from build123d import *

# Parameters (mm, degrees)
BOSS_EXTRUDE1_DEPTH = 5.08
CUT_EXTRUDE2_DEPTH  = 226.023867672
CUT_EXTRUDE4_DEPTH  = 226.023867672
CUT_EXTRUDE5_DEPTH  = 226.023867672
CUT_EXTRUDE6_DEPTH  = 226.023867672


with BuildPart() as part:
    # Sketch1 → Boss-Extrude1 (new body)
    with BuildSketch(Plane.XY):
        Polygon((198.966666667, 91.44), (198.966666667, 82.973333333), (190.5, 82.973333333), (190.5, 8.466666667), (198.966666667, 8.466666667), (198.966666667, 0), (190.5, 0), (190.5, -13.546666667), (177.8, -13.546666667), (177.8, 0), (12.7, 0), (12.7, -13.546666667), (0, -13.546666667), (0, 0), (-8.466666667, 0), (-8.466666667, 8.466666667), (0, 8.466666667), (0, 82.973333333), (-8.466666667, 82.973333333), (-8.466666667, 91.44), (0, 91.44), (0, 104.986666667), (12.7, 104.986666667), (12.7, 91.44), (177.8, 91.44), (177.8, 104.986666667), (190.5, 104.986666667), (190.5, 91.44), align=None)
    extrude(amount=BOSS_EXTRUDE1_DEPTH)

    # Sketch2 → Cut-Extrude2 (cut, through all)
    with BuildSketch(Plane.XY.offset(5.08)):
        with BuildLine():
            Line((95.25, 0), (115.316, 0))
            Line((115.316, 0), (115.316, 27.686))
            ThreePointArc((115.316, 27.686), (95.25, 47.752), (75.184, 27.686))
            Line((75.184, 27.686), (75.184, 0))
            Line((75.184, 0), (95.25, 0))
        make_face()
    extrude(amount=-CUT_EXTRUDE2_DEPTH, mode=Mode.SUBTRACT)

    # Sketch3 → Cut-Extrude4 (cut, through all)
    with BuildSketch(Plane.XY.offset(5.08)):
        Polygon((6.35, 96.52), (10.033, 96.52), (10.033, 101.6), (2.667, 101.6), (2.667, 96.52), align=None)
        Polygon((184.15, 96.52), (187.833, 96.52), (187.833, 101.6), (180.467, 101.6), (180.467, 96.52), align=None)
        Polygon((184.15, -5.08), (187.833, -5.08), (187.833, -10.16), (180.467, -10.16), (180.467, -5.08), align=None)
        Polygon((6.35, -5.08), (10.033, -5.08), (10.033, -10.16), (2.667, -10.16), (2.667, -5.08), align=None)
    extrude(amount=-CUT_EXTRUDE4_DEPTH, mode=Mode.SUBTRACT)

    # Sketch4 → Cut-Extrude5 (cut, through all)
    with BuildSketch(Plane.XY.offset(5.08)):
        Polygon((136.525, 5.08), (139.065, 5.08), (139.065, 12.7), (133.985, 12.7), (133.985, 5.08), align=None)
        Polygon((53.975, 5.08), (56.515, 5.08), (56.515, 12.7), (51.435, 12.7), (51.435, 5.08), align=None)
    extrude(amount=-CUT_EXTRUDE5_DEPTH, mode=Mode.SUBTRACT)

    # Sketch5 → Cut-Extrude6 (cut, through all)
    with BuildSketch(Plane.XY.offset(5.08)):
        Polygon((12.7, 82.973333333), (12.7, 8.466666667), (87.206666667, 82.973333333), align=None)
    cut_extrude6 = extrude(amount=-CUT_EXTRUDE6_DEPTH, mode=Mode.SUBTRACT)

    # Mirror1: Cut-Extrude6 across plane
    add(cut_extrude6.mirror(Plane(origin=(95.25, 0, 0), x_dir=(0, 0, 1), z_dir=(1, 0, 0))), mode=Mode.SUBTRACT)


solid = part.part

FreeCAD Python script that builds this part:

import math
import FreeCAD as App
import Part
import Sketcher
from FreeCAD import Vector
Q = App.Units.Quantity

doc = App.newDocument("Part")
body = doc.addObject("PartDesign::Body", "Body")

# Sketch on XY plane
sketch1 = doc.addObject("Sketcher::SketchObject", "Sketch")
body.addObject(sketch1)
sketch1.AttachmentSupport = (doc.XY_Plane, [""])
sketch1.MapMode = "FlatFace"
sketch1.addGeometry(Part.LineSegment(Vector(199, 83, 0), Vector(199, 91, 0)), False)
sketch1.addGeometry(Part.LineSegment(Vector(199, 91, 0), Vector(190, 91, 0)), False)
sketch1.addGeometry(Part.LineSegment(Vector(190, 91, 0), Vector(190, 105, 0)), False)
sketch1.addGeometry(Part.LineSegment(Vector(190, 105, 0), Vector(178, 105, 0)), False)
sketch1.addGeometry(Part.LineSegment(Vector(178, 105, 0), Vector(178, 91, 0)), False)
sketch1.addGeometry(Part.LineSegment(Vector(178, 91, 0), Vector(13, 91, 0)), False)
sketch1.addGeometry(Part.LineSegment(Vector(13, 91, 0), Vector(13, 105, 0)), False)
sketch1.addGeometry(Part.LineSegment(Vector(13, 105, 0), Vector(0, 105, 0)), False)
sketch1.addGeometry(Part.LineSegment(Vector(0, 105, 0), Vector(0, 91, 0)), False)
sketch1.addGeometry(Part.LineSegment(Vector(0, 91, 0), Vector(-8, 91, 0)), False)
sketch1.addGeometry(Part.LineSegment(Vector(-8, 91, 0), Vector(-8, 83, 0)), False)
sketch1.addGeometry(Part.LineSegment(Vector(-8, 83, 0), Vector(0, 83, 0)), False)
sketch1.addGeometry(Part.LineSegment(Vector(0, 83, 0), Vector(0, 8, 0)), False)
sketch1.addGeometry(Part.LineSegment(Vector(0, 8, 0), Vector(-8, 8, 0)), False)
sketch1.addGeometry(Part.LineSegment(Vector(-8, 8, 0), Vector(-8, 0, 0)), False)
sketch1.addGeometry(Part.LineSegment(Vector(-8, 0, 0), Vector(0, 0, 0)), False)
sketch1.addGeometry(Part.LineSegment(Vector(0, 0, 0), Vector(0, -14, 0)), False)
sketch1.addGeometry(Part.LineSegment(Vector(0, -14, 0), Vector(13, -14, 0)), False)
sketch1.addGeometry(Part.LineSegment(Vector(13, -14, 0), Vector(13, 0, 0)), False)
sketch1.addGeometry(Part.LineSegment(Vector(13, 0, 0), Vector(178, 0, 0)), False)
sketch1.addGeometry(Part.LineSegment(Vector(178, 0, 0), Vector(178, -14, 0)), False)
sketch1.addGeometry(Part.LineSegment(Vector(178, -14, 0), Vector(190, -14, 0)), False)
sketch1.addGeometry(Part.LineSegment(Vector(190, -14, 0), Vector(190, 0, 0)), False)
sketch1.addGeometry(Part.LineSegment(Vector(190, 0, 0), Vector(199, 0, 0)), False)
sketch1.addGeometry(Part.LineSegment(Vector(199, 0, 0), Vector(199, 8, 0)), False)
sketch1.addGeometry(Part.LineSegment(Vector(199, 8, 0), Vector(190, 8, 0)), False)
sketch1.addGeometry(Part.LineSegment(Vector(190, 8, 0), Vector(190, 83, 0)), False)
sketch1.addGeometry(Part.LineSegment(Vector(190, 83, 0), Vector(199, 83, 0)), False)
sketch1.addConstraint(Sketcher.Constraint("Coincident", 0, 2, 1, 1))
sketch1.addConstraint(Sketcher.Constraint("Coincident", 1, 2, 2, 1))
sketch1.addConstraint(Sketcher.Constraint("Coincident", 2, 2, 3, 1))
sketch1.addConstraint(Sketcher.Constraint("Coincident", 3, 2, 4, 1))
sketch1.addConstraint(Sketcher.Constraint("Coincident", 4, 2, 5, 1))
sketch1.addConstraint(Sketcher.Constraint("Coincident", 5, 2, 6, 1))
sketch1.addConstraint(Sketcher.Constraint("Coincident", 6, 2, 7, 1))
sketch1.addConstraint(Sketcher.Constraint("Coincident", 7, 2, 8, 1))
sketch1.addConstraint(Sketcher.Constraint("Coincident", 8, 2, 9, 1))
sketch1.addConstraint(Sketcher.Constraint("Coincident", 9, 2, 10, 1))
sketch1.addConstraint(Sketcher.Constraint("Coincident", 10, 2, 11, 1))
sketch1.addConstraint(Sketcher.Constraint("Coincident", 11, 2, 12, 1))
sketch1.addConstraint(Sketcher.Constraint("Coincident", 12, 2, 13, 1))
sketch1.addConstraint(Sketcher.Constraint("Coincident", 13, 2, 14, 1))
sketch1.addConstraint(Sketcher.Constraint("Coincident", 14, 2, 15, 1))
sketch1.addConstraint(Sketcher.Constraint("Coincident", 15, 2, 16, 1))
sketch1.addConstraint(Sketcher.Constraint("Coincident", 16, 2, 17, 1))
sketch1.addConstraint(Sketcher.Constraint("Coincident", 17, 2, 18, 1))
sketch1.addConstraint(Sketcher.Constraint("Coincident", 18, 2, 19, 1))
sketch1.addConstraint(Sketcher.Constraint("Coincident", 19, 2, 20, 1))
sketch1.addConstraint(Sketcher.Constraint("Coincident", 20, 2, 21, 1))
sketch1.addConstraint(Sketcher.Constraint("Coincident", 21, 2, 22, 1))
sketch1.addConstraint(Sketcher.Constraint("Coincident", 22, 2, 23, 1))
sketch1.addConstraint(Sketcher.Constraint("Coincident", 23, 2, 24, 1))
sketch1.addConstraint(Sketcher.Constraint("Coincident", 24, 2, 25, 1))
sketch1.addConstraint(Sketcher.Constraint("Coincident", 25, 2, 26, 1))
sketch1.addConstraint(Sketcher.Constraint("Coincident", 26, 2, 27, 1))
sketch1.addConstraint(Sketcher.Constraint("Coincident", 27, 2, 0, 1))
sketch1.addConstraint(Sketcher.Constraint("Vertical", 0))
sketch1.addConstraint(Sketcher.Constraint("Horizontal", 1))
sketch1.addConstraint(Sketcher.Constraint("Vertical", 2))
sketch1.addConstraint(Sketcher.Constraint("Horizontal", 3))
sketch1.addConstraint(Sketcher.Constraint("Vertical", 4))
sketch1.addConstraint(Sketcher.Constraint("Horizontal", 5))
sketch1.addConstraint(Sketcher.Constraint("Vertical", 6))
sketch1.addConstraint(Sketcher.Constraint("Horizontal", 7))
sketch1.addConstraint(Sketcher.Constraint("Vertical", 8))
sketch1.addConstraint(Sketcher.Constraint("Horizontal", 9))
sketch1.addConstraint(Sketcher.Constraint("Vertical", 10))
sketch1.addConstraint(Sketcher.Constraint("Horizontal", 11))
sketch1.addConstraint(Sketcher.Constraint("Vertical", 12))
sketch1.addConstraint(Sketcher.Constraint("Horizontal", 13))
sketch1.addConstraint(Sketcher.Constraint("Vertical", 14))
sketch1.addConstraint(Sketcher.Constraint("Horizontal", 15))
sketch1.addConstraint(Sketcher.Constraint("Vertical", 16))
sketch1.addConstraint(Sketcher.Constraint("Horizontal", 17))
sketch1.addConstraint(Sketcher.Constraint("Vertical", 18))
sketch1.addConstraint(Sketcher.Constraint("Horizontal", 19))
sketch1.addConstraint(Sketcher.Constraint("Vertical", 20))
sketch1.addConstraint(Sketcher.Constraint("Horizontal", 21))
sketch1.addConstraint(Sketcher.Constraint("Vertical", 22))
sketch1.addConstraint(Sketcher.Constraint("Horizontal", 23))
sketch1.addConstraint(Sketcher.Constraint("Vertical", 24))
sketch1.addConstraint(Sketcher.Constraint("Horizontal", 25))
sketch1.addConstraint(Sketcher.Constraint("Vertical", 26))
sketch1.addConstraint(Sketcher.Constraint("Horizontal", 27))
sketch1.addConstraint(Sketcher.Constraint("Coincident", 15, 2, -1, 1))
sketch1.addConstraint(Sketcher.Constraint("PointOnObject", 7, 2, -2))
sketch1.addConstraint(Sketcher.Constraint("PointOnObject", 11, 2, -2))
sketch1.addConstraint(Sketcher.Constraint("PointOnObject", 18, 2, -1))
sketch1.addConstraint(Sketcher.Constraint("PointOnObject", 22, 2, -1))
sketch1.addConstraint(Sketcher.Constraint("Horizontal", 1, 2, 4, 2))
sketch1.addConstraint(Sketcher.Constraint("Horizontal", 3, 2, 6, 2))
sketch1.addConstraint(Sketcher.Constraint("Horizontal", 5, 2, 8, 2))
sketch1.addConstraint(Sketcher.Constraint("Horizontal", 17, 2, 20, 2))
sketch1.addConstraint(Sketcher.Constraint("Horizontal", 13, 2, 24, 2))
sketch1.addConstraint(Sketcher.Constraint("Horizontal", 11, 2, 26, 2))
sketch1.addConstraint(Sketcher.Constraint("Vertical", 10, 2, 13, 2))
sketch1.addConstraint(Sketcher.Constraint("Vertical", 6, 2, 17, 2))
sketch1.addConstraint(Sketcher.Constraint("Vertical", 4, 2, 19, 2))
sketch1.addConstraint(Sketcher.Constraint("Vertical", 2, 2, 21, 2))
sketch1.addConstraint(Sketcher.Constraint("Vertical", 0, 2, 23, 2))
sketch1.addConstraint(Sketcher.Constraint("Vertical", 22, 2, 25, 2))
sketch1.addConstraint(Sketcher.Constraint("Equal", 3, 7))
sketch1.addConstraint(Sketcher.Constraint("Equal", 1, 9))
sketch1.addConstraint(Sketcher.Constraint("Equal", 27, 0))
sketch1.addConstraint(Sketcher.Constraint("Equal", 10, 14))
sketch1.addConstraint(Sketcher.Constraint("Equal", 8, 16))
sketch1.addConstraint(Sketcher.Constraint("DistanceX", 3, 2, 3, 1, Q("0.5 in")))
sketch1.addConstraint(Sketcher.Constraint("DistanceX", 5, 2, 5, 1, Q("6.5 in")))
sketch1.addConstraint(Sketcher.Constraint("DistanceY", -1, 1, 0, 2, Q("3.6 in")))
sketch1.addConstraint(Sketcher.Constraint("DistanceY", 16, 2, 11, 2, Q("3.8 in")))
sketch1.addConstraint(Sketcher.Constraint("DistanceX", 1, 2, 1, 1, 8.466667))
pad1 = doc.addObject("PartDesign::Pad", "Pad")
body.addObject(pad1)
pad1.Profile = sketch1
pad1.Length = Q("0.2 in")

# Sketch on XY plane
sketch2 = doc.addObject("Sketcher::SketchObject", "Sketch001")
body.addObject(sketch2)
sketch2.AttachmentSupport = (doc.XY_Plane, [""])
sketch2.MapMode = "FlatFace"
sketch2.AttachmentOffset = App.Placement(Vector(0, 0, 0.2 * 25.4), App.Rotation())
sketch2.addGeometry(Part.LineSegment(Vector(115, 0, 0), Vector(115, 28, 0)), False)
sketch2.addGeometry(Part.ArcOfCircle(Part.Circle(Vector(95, 28, 0), Vector(0, 0, 1), 20), math.radians(0), math.radians(180)), False)
sketch2.addGeometry(Part.LineSegment(Vector(75, 28, 0), Vector(75, 0, 0)), False)
sketch2.addGeometry(Part.LineSegment(Vector(75, 0, 0), Vector(115, 0, 0)), False)
sketch2.addConstraint(Sketcher.Constraint("Tangent", 0, 2, 1, 1))
sketch2.addConstraint(Sketcher.Constraint("Tangent", 1, 2, 2, 1))
sketch2.addConstraint(Sketcher.Constraint("Coincident", 2, 2, 3, 1))
sketch2.addConstraint(Sketcher.Constraint("Coincident", 3, 2, 0, 1))
sketch2.addConstraint(Sketcher.Constraint("Vertical", 0))
sketch2.addConstraint(Sketcher.Constraint("Vertical", 2))
sketch2.addConstraint(Sketcher.Constraint("Horizontal", 3))
sketch2.addConstraint(Sketcher.Constraint("PointOnObject", 2, 2, -1))
sketch2.addConstraint(Sketcher.Constraint("Radius", 1, Q("0.79 in")))
sketch2.addConstraint(Sketcher.Constraint("DistanceY", 0, 1, 0, 2, Q("1.09 in")))
sketch2.addConstraint(Sketcher.Constraint("DistanceX", -1, 1, 1, 3, Q("3.75 in")))
pocket1 = doc.addObject("PartDesign::Pocket", "Pocket")
body.addObject(pocket1)
pocket1.Profile = sketch2
pocket1.Type = "ThroughAll"

# Sketch on XY plane
sketch3 = doc.addObject("Sketcher::SketchObject", "Sketch002")
body.addObject(sketch3)
sketch3.AttachmentSupport = (doc.XY_Plane, [""])
sketch3.MapMode = "FlatFace"
sketch3.AttachmentOffset = App.Placement(Vector(0, 0, 0.2 * 25.4), App.Rotation())
sketch3.addGeometry(Part.LineSegment(Vector(10, 97, 0), Vector(10, 102, 0)), False)
sketch3.addGeometry(Part.LineSegment(Vector(10, 102, 0), Vector(3, 102, 0)), False)
sketch3.addGeometry(Part.LineSegment(Vector(3, 102, 0), Vector(3, 97, 0)), False)
sketch3.addGeometry(Part.LineSegment(Vector(3, 97, 0), Vector(10, 97, 0)), False)
sketch3.addGeometry(Part.LineSegment(Vector(188, 97, 0), Vector(188, 102, 0)), False)
sketch3.addGeometry(Part.LineSegment(Vector(188, 102, 0), Vector(180, 102, 0)), False)
sketch3.addGeometry(Part.LineSegment(Vector(180, 102, 0), Vector(180, 97, 0)), False)
sketch3.addGeometry(Part.LineSegment(Vector(180, 97, 0), Vector(188, 97, 0)), False)
sketch3.addGeometry(Part.LineSegment(Vector(188, -5, 0), Vector(180, -5, 0)), False)
sketch3.addGeometry(Part.LineSegment(Vector(180, -5, 0), Vector(180, -10, 0)), False)
sketch3.addGeometry(Part.LineSegment(Vector(180, -10, 0), Vector(188, -10, 0)), False)
sketch3.addGeometry(Part.LineSegment(Vector(188, -10, 0), Vector(188, -5, 0)), False)
sketch3.addGeometry(Part.LineSegment(Vector(10, -5, 0), Vector(3, -5, 0)), False)
sketch3.addGeometry(Part.LineSegment(Vector(3, -5, 0), Vector(3, -10, 0)), False)
sketch3.addGeometry(Part.LineSegment(Vector(3, -10, 0), Vector(10, -10, 0)), False)
sketch3.addGeometry(Part.LineSegment(Vector(10, -10, 0), Vector(10, -5, 0)), False)
sketch3.addConstraint(Sketcher.Constraint("Coincident", 0, 2, 1, 1))
sketch3.addConstraint(Sketcher.Constraint("Coincident", 1, 2, 2, 1))
sketch3.addConstraint(Sketcher.Constraint("Coincident", 2, 2, 3, 1))
sketch3.addConstraint(Sketcher.Constraint("Coincident", 3, 2, 0, 1))
sketch3.addConstraint(Sketcher.Constraint("Coincident", 4, 2, 5, 1))
sketch3.addConstraint(Sketcher.Constraint("Coincident", 5, 2, 6, 1))
sketch3.addConstraint(Sketcher.Constraint("Coincident", 6, 2, 7, 1))
sketch3.addConstraint(Sketcher.Constraint("Coincident", 7, 2, 4, 1))
sketch3.addConstraint(Sketcher.Constraint("Coincident", 8, 2, 9, 1))
sketch3.addConstraint(Sketcher.Constraint("Coincident", 9, 2, 10, 1))
sketch3.addConstraint(Sketcher.Constraint("Coincident", 10, 2, 11, 1))
sketch3.addConstraint(Sketcher.Constraint("Coincident", 11, 2, 8, 1))
sketch3.addConstraint(Sketcher.Constraint("Coincident", 12, 2, 13, 1))
sketch3.addConstraint(Sketcher.Constraint("Coincident", 13, 2, 14, 1))
sketch3.addConstraint(Sketcher.Constraint("Coincident", 14, 2, 15, 1))
sketch3.addConstraint(Sketcher.Constraint("Coincident", 15, 2, 12, 1))
sketch3.addConstraint(Sketcher.Constraint("Vertical", 0))
sketch3.addConstraint(Sketcher.Constraint("Horizontal", 1))
sketch3.addConstraint(Sketcher.Constraint("Vertical", 2))
sketch3.addConstraint(Sketcher.Constraint("Horizontal", 3))
sketch3.addConstraint(Sketcher.Constraint("Vertical", 4))
sketch3.addConstraint(Sketcher.Constraint("Horizontal", 5))
sketch3.addConstraint(Sketcher.Constraint("Vertical", 6))
sketch3.addConstraint(Sketcher.Constraint("Horizontal", 7))
sketch3.addConstraint(Sketcher.Constraint("Horizontal", 8))
sketch3.addConstraint(Sketcher.Constraint("Vertical", 9))
sketch3.addConstraint(Sketcher.Constraint("Horizontal", 10))
sketch3.addConstraint(Sketcher.Constraint("Vertical", 11))
sketch3.addConstraint(Sketcher.Constraint("Horizontal", 12))
sketch3.addConstraint(Sketcher.Constraint("Vertical", 13))
sketch3.addConstraint(Sketcher.Constraint("Horizontal", 14))
sketch3.addConstraint(Sketcher.Constraint("Vertical", 15))
sketch3.addConstraint(Sketcher.Constraint("Horizontal", 1, 2, 4, 2))
sketch3.addConstraint(Sketcher.Constraint("Horizontal", 3, 2, 6, 2))
sketch3.addConstraint(Sketcher.Constraint("Horizontal", 11, 2, 12, 2))
sketch3.addConstraint(Sketcher.Constraint("Horizontal", 10, 2, 13, 2))
sketch3.addConstraint(Sketcher.Constraint("Vertical", 6, 2, 8, 2))
sketch3.addConstraint(Sketcher.Constraint("Vertical", 7, 2, 10, 2))
sketch3.addConstraint(Sketcher.Constraint("Vertical", 2, 2, 12, 2))
sketch3.addConstraint(Sketcher.Constraint("Vertical", 3, 2, 14, 2))
sketch3.addConstraint(Sketcher.Constraint("Equal", 3, 5))
sketch3.addConstraint(Sketcher.Constraint("Equal", 6, 9))
sketch3.addConstraint(Sketcher.Constraint("DistanceY", 0, 1, 0, 2, Q("0.2 in")))
sketch3.addConstraint(Sketcher.Constraint("DistanceY", -1, 1, 0, 2, Q("4 in")))
sketch3.addConstraint(Sketcher.Constraint("DistanceX", 0, 2, 4, 2, Q("7 in")))
sketch3.addConstraint(Sketcher.Constraint("DistanceY", 8, 2, 6, 2, Q("4 in")))
sketch3.addConstraint(Sketcher.Constraint("DistanceX", 1, 2, 1, 1, Q("0.29 in")))
sketch3.addConstraint(Sketcher.Constraint("DistanceX", -1, 1, 0, 2, Q("0.395 in")))
pocket2 = doc.addObject("PartDesign::Pocket", "Pocket001")
body.addObject(pocket2)
pocket2.Profile = sketch3
pocket2.Type = "ThroughAll"

# Sketch on XY plane
sketch4 = doc.addObject("Sketcher::SketchObject", "Sketch003")
body.addObject(sketch4)
sketch4.AttachmentSupport = (doc.XY_Plane, [""])
sketch4.MapMode = "FlatFace"
sketch4.AttachmentOffset = App.Placement(Vector(0, 0, 0.2 * 25.4), App.Rotation())
sketch4.addGeometry(Part.LineSegment(Vector(139, 5, 0), Vector(139, 13, 0)), False)
sketch4.addGeometry(Part.LineSegment(Vector(139, 13, 0), Vector(134, 13, 0)), False)
sketch4.addGeometry(Part.LineSegment(Vector(134, 13, 0), Vector(134, 5, 0)), False)
sketch4.addGeometry(Part.LineSegment(Vector(134, 5, 0), Vector(139, 5, 0)), False)
sketch4.addGeometry(Part.LineSegment(Vector(57, 5, 0), Vector(57, 13, 0)), False)
sketch4.addGeometry(Part.LineSegment(Vector(57, 13, 0), Vector(51, 13, 0)), False)
sketch4.addGeometry(Part.LineSegment(Vector(51, 13, 0), Vector(51, 5, 0)), False)
sketch4.addGeometry(Part.LineSegment(Vector(51, 5, 0), Vector(57, 5, 0)), False)
sketch4.addConstraint(Sketcher.Constraint("Coincident", 0, 2, 1, 1))
sketch4.addConstraint(Sketcher.Constraint("Coincident", 1, 2, 2, 1))
sketch4.addConstraint(Sketcher.Constraint("Coincident", 2, 2, 3, 1))
sketch4.addConstraint(Sketcher.Constraint("Coincident", 3, 2, 0, 1))
sketch4.addConstraint(Sketcher.Constraint("Coincident", 4, 2, 5, 1))
sketch4.addConstraint(Sketcher.Constraint("Coincident", 5, 2, 6, 1))
sketch4.addConstraint(Sketcher.Constraint("Coincident", 6, 2, 7, 1))
sketch4.addConstraint(Sketcher.Constraint("Coincident", 7, 2, 4, 1))
sketch4.addConstraint(Sketcher.Constraint("Vertical", 0))
sketch4.addConstraint(Sketcher.Constraint("Horizontal", 1))
sketch4.addConstraint(Sketcher.Constraint("Vertical", 2))
sketch4.addConstraint(Sketcher.Constraint("Horizontal", 3))
sketch4.addConstraint(Sketcher.Constraint("Vertical", 4))
sketch4.addConstraint(Sketcher.Constraint("Horizontal", 5))
sketch4.addConstraint(Sketcher.Constraint("Vertical", 6))
sketch4.addConstraint(Sketcher.Constraint("Horizontal", 7))
sketch4.addConstraint(Sketcher.Constraint("Horizontal", 1, 2, 4, 2))
sketch4.addConstraint(Sketcher.Constraint("Horizontal", 3, 2, 6, 2))
sketch4.addConstraint(Sketcher.Constraint("Equal", 3, 5))
sketch4.addConstraint(Sketcher.Constraint("DistanceX", 1, 2, 1, 1, Q("0.2 in")))
sketch4.addConstraint(Sketcher.Constraint("DistanceY", 0, 1, 0, 2, Q("0.3 in")))
sketch4.addConstraint(Sketcher.Constraint("DistanceY", -1, 1, 0, 2, Q("0.5 in")))
sketch4.addConstraint(Sketcher.Constraint("DistanceX", 4, 2, 1, 2, Q("3.05 in")))
sketch4.addConstraint(Sketcher.Constraint("DistanceX", -1, 1, 0, 2, Q("5.475 in")))
pocket3 = doc.addObject("PartDesign::Pocket", "Pocket002")
body.addObject(pocket3)
pocket3.Profile = sketch4
pocket3.Type = "ThroughAll"

# Sketch on XY plane
sketch5 = doc.addObject("Sketcher::SketchObject", "Sketch004")
body.addObject(sketch5)
sketch5.AttachmentSupport = (doc.XY_Plane, [""])
sketch5.MapMode = "FlatFace"
sketch5.AttachmentOffset = App.Placement(Vector(0, 0, 0.2 * 25.4), App.Rotation())
sketch5.addGeometry(Part.LineSegment(Vector(13, 83, 0), Vector(13, 8, 0)), False)
sketch5.addGeometry(Part.LineSegment(Vector(13, 8, 0), Vector(87, 83, 0)), False)
sketch5.addGeometry(Part.LineSegment(Vector(87, 83, 0), Vector(13, 83, 0)), False)
sketch5.addConstraint(Sketcher.Constraint("Coincident", 0, 2, 1, 1))
sketch5.addConstraint(Sketcher.Constraint("Coincident", 1, 2, 2, 1))
sketch5.addConstraint(Sketcher.Constraint("Coincident", 2, 2, 0, 1))
sketch5.addConstraint(Sketcher.Constraint("Vertical", 0))
sketch5.addConstraint(Sketcher.Constraint("Horizontal", 2))
sketch5.addConstraint(Sketcher.Constraint("Equal", 2, 0))
sketch5.addConstraint(Sketcher.Constraint("DistanceX", -1, 1, 0, 2, Q("0.5 in")))
sketch5.addConstraint(Sketcher.Constraint("Distance", 1, 105.368338))
sketch5.addConstraint(Sketcher.Constraint("DistanceY", -1, 1, 0, 2, 8.466667))
pocket4 = doc.addObject("PartDesign::Pocket", "Pocket003")
body.addObject(pocket4)
pocket4.Profile = sketch5
pocket4.Type = "ThroughAll"
doc.recompute()

datumplane = doc.addObject("PartDesign::Plane", "DatumPlane")
body.addObject(datumplane)
datumplane.AttachmentSupport = (doc.YZ_Plane, [""])
datumplane.MapMode = "FlatFace"
datumplane.AttachmentOffset = App.Placement(Vector(0, 0, 3.75 * 25.4), App.Rotation())
mirrored = doc.addObject("PartDesign::Mirrored", "Mirrored")
body.addObject(mirrored)
mirrored.Originals = [pocket4]
mirrored.MirrorPlane = (datumplane, [""])
body.Tip = mirrored

doc.recompute()
